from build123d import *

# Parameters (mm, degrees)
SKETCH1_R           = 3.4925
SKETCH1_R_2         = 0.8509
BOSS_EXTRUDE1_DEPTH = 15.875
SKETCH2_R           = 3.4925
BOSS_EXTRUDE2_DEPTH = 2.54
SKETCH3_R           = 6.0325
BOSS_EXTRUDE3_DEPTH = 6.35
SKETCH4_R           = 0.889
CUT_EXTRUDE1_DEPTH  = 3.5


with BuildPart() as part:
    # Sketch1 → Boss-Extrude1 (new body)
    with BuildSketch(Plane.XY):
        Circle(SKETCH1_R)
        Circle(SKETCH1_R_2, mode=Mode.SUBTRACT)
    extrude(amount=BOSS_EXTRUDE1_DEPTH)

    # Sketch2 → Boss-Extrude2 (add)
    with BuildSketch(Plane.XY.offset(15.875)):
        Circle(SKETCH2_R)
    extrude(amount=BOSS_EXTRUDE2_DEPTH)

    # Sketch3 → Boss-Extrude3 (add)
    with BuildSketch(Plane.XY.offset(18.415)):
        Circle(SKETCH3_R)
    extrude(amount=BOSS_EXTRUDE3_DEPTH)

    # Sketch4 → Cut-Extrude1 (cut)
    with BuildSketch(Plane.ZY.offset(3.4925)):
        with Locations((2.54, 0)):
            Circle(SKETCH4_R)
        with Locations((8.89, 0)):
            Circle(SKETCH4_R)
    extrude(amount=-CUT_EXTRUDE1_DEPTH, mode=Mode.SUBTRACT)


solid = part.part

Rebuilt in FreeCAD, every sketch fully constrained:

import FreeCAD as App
import Part
import Sketcher

V = App.Vector
Q = App.Units.Quantity

doc = App.newDocument("Part")
params = doc.addObject("Spreadsheet::Sheet", "Params")
for row, (alias, value) in enumerate([
    ("sketch1_diameter", "0.275 in"),
    ("sketch1_diameter2", "0.067 in"),
    ("pad1_length", "0.625 in"),
    ("sketch2_diameter", "0.275 in"),
    ("pad2_length", "0.1 in"),
    ("sketch3_diameter", "0.475 in"),
    ("pad3_length", "0.25 in"),
    ("sketch4_diameter", "0.07 in"),
    ("pocket1_length", "3.5 mm"),
], start=1):
    params.set(f"A{row}", alias)
    params.set(f"B{row}", "=" + value)
    params.setAlias(f"B{row}", alias)

body = doc.addObject("PartDesign::Body", "Body")

# Sketch on XY plane
sketch1 = body.newObject("Sketcher::SketchObject", "Sketch")
sketch1.AttachmentSupport = (doc.getObject("XY_Plane"), [""])
sketch1.MapMode = "FlatFace"
sketch1.addGeometry(Part.Circle(V(0, 0, 0), V(0, 0, 1), 3.5), False)
sketch1.addGeometry(Part.Circle(V(0, 0, 0), V(0, 0, 1), 0.9), False)
sketch1.addConstraint(Sketcher.Constraint("Coincident", 0, 3, -1, 1))
sketch1.addConstraint(Sketcher.Constraint("Coincident", 1, 3, -1, 1))
sketch1.addConstraint(Sketcher.Constraint("Diameter", 0, Q("0.275 in")))
sketch1.addConstraint(Sketcher.Constraint("Diameter", 1, Q("0.067 in")))
sketch1.setExpression("Constraints[2]", "Params.sketch1_diameter")
sketch1.setExpression("Constraints[3]", "Params.sketch1_diameter2")
pad1 = body.newObject("PartDesign::Pad", "Pad")
pad1.Profile = sketch1
pad1.setExpression("Length", "Params.pad1_length")

# Sketch on XY plane
sketch2 = body.newObject("Sketcher::SketchObject", "Sketch001")
sketch2.AttachmentSupport = (doc.getObject("XY_Plane"), [""])
sketch2.MapMode = "FlatFace"
sketch2.AttachmentOffset = App.Placement(V(0, 0, 0.625 * 25.4), App.Rotation())
sketch2.addGeometry(Part.Circle(V(0, 0, 0), V(0, 0, 1), 3.5), False)
sketch2.addConstraint(Sketcher.Constraint("Coincident", 0, 3, -1, 1))
sketch2.addConstraint(Sketcher.Constraint("Diameter", 0, Q("0.275 in")))
sketch2.setExpression("Constraints[1]", "Params.sketch2_diameter")
pad2 = body.newObject("PartDesign::Pad", "Pad001")
pad2.Profile = sketch2
pad2.setExpression("Length", "Params.pad2_length")

# Sketch on XY plane
sketch3 = body.newObject("Sketcher::SketchObject", "Sketch002")
sketch3.AttachmentSupport = (doc.getObject("XY_Plane"), [""])
sketch3.MapMode = "FlatFace"
sketch3.AttachmentOffset = App.Placement(V(0, 0, 0.725 * 25.4), App.Rotation())
sketch3.addGeometry(Part.Circle(V(0, 0, 0), V(0, 0, 1), 6), False)
sketch3.addConstraint(Sketcher.Constraint("Coincident", 0, 3, -1, 1))
sketch3.addConstraint(Sketcher.Constraint("Diameter", 0, Q("0.475 in")))
sketch3.setExpression("Constraints[1]", "Params.sketch3_diameter")
pad3 = body.newObject("PartDesign::Pad", "Pad002")
pad3.Profile = sketch3
pad3.setExpression("Length", "Params.pad3_length")

# Sketch on YZ plane
sketch4 = body.newObject("Sketcher::SketchObject", "Sketch003")
sketch4.AttachmentSupport = (doc.getObject("YZ_Plane"), [""])
sketch4.MapMode = "FlatFace"
sketch4.AttachmentOffset = App.Placement(V(0, 0, -0.1375 * 25.4), App.Rotation())
sketch4.addGeometry(Part.Circle(V(0, 2.5, 0), V(0, 0, 1), 0.9), False)
sketch4.addGeometry(Part.Circle(V(0, 8.9, 0), V(0, 0, 1), 0.9), False)
sketch4.addConstraint(Sketcher.Constraint("Equal", 0, 1))
sketch4.addConstraint(Sketcher.Constraint("PointOnObject", 0, 3, -2))
sketch4.addConstraint(Sketcher.Constraint("PointOnObject", 1, 3, -2))
sketch4.addConstraint(Sketcher.Constraint("Diameter", 0, Q("0.07 in")))
sketch4.addConstraint(Sketcher.Constraint("DistanceY", -1, 1, 0, 3, Q("0.1 in")))
sketch4.addConstraint(Sketcher.Constraint("DistanceY", -1, 1, 1, 3, Q("0.35 in")))
sketch4.setExpression("Constraints[3]", "Params.sketch4_diameter")
pocket1 = body.newObject("PartDesign::Pocket", "Pocket")
pocket1.Profile = sketch4
pocket1.setExpression("Length", "Params.pocket1_length")
pocket1.Reversed = True

doc.recompute()
